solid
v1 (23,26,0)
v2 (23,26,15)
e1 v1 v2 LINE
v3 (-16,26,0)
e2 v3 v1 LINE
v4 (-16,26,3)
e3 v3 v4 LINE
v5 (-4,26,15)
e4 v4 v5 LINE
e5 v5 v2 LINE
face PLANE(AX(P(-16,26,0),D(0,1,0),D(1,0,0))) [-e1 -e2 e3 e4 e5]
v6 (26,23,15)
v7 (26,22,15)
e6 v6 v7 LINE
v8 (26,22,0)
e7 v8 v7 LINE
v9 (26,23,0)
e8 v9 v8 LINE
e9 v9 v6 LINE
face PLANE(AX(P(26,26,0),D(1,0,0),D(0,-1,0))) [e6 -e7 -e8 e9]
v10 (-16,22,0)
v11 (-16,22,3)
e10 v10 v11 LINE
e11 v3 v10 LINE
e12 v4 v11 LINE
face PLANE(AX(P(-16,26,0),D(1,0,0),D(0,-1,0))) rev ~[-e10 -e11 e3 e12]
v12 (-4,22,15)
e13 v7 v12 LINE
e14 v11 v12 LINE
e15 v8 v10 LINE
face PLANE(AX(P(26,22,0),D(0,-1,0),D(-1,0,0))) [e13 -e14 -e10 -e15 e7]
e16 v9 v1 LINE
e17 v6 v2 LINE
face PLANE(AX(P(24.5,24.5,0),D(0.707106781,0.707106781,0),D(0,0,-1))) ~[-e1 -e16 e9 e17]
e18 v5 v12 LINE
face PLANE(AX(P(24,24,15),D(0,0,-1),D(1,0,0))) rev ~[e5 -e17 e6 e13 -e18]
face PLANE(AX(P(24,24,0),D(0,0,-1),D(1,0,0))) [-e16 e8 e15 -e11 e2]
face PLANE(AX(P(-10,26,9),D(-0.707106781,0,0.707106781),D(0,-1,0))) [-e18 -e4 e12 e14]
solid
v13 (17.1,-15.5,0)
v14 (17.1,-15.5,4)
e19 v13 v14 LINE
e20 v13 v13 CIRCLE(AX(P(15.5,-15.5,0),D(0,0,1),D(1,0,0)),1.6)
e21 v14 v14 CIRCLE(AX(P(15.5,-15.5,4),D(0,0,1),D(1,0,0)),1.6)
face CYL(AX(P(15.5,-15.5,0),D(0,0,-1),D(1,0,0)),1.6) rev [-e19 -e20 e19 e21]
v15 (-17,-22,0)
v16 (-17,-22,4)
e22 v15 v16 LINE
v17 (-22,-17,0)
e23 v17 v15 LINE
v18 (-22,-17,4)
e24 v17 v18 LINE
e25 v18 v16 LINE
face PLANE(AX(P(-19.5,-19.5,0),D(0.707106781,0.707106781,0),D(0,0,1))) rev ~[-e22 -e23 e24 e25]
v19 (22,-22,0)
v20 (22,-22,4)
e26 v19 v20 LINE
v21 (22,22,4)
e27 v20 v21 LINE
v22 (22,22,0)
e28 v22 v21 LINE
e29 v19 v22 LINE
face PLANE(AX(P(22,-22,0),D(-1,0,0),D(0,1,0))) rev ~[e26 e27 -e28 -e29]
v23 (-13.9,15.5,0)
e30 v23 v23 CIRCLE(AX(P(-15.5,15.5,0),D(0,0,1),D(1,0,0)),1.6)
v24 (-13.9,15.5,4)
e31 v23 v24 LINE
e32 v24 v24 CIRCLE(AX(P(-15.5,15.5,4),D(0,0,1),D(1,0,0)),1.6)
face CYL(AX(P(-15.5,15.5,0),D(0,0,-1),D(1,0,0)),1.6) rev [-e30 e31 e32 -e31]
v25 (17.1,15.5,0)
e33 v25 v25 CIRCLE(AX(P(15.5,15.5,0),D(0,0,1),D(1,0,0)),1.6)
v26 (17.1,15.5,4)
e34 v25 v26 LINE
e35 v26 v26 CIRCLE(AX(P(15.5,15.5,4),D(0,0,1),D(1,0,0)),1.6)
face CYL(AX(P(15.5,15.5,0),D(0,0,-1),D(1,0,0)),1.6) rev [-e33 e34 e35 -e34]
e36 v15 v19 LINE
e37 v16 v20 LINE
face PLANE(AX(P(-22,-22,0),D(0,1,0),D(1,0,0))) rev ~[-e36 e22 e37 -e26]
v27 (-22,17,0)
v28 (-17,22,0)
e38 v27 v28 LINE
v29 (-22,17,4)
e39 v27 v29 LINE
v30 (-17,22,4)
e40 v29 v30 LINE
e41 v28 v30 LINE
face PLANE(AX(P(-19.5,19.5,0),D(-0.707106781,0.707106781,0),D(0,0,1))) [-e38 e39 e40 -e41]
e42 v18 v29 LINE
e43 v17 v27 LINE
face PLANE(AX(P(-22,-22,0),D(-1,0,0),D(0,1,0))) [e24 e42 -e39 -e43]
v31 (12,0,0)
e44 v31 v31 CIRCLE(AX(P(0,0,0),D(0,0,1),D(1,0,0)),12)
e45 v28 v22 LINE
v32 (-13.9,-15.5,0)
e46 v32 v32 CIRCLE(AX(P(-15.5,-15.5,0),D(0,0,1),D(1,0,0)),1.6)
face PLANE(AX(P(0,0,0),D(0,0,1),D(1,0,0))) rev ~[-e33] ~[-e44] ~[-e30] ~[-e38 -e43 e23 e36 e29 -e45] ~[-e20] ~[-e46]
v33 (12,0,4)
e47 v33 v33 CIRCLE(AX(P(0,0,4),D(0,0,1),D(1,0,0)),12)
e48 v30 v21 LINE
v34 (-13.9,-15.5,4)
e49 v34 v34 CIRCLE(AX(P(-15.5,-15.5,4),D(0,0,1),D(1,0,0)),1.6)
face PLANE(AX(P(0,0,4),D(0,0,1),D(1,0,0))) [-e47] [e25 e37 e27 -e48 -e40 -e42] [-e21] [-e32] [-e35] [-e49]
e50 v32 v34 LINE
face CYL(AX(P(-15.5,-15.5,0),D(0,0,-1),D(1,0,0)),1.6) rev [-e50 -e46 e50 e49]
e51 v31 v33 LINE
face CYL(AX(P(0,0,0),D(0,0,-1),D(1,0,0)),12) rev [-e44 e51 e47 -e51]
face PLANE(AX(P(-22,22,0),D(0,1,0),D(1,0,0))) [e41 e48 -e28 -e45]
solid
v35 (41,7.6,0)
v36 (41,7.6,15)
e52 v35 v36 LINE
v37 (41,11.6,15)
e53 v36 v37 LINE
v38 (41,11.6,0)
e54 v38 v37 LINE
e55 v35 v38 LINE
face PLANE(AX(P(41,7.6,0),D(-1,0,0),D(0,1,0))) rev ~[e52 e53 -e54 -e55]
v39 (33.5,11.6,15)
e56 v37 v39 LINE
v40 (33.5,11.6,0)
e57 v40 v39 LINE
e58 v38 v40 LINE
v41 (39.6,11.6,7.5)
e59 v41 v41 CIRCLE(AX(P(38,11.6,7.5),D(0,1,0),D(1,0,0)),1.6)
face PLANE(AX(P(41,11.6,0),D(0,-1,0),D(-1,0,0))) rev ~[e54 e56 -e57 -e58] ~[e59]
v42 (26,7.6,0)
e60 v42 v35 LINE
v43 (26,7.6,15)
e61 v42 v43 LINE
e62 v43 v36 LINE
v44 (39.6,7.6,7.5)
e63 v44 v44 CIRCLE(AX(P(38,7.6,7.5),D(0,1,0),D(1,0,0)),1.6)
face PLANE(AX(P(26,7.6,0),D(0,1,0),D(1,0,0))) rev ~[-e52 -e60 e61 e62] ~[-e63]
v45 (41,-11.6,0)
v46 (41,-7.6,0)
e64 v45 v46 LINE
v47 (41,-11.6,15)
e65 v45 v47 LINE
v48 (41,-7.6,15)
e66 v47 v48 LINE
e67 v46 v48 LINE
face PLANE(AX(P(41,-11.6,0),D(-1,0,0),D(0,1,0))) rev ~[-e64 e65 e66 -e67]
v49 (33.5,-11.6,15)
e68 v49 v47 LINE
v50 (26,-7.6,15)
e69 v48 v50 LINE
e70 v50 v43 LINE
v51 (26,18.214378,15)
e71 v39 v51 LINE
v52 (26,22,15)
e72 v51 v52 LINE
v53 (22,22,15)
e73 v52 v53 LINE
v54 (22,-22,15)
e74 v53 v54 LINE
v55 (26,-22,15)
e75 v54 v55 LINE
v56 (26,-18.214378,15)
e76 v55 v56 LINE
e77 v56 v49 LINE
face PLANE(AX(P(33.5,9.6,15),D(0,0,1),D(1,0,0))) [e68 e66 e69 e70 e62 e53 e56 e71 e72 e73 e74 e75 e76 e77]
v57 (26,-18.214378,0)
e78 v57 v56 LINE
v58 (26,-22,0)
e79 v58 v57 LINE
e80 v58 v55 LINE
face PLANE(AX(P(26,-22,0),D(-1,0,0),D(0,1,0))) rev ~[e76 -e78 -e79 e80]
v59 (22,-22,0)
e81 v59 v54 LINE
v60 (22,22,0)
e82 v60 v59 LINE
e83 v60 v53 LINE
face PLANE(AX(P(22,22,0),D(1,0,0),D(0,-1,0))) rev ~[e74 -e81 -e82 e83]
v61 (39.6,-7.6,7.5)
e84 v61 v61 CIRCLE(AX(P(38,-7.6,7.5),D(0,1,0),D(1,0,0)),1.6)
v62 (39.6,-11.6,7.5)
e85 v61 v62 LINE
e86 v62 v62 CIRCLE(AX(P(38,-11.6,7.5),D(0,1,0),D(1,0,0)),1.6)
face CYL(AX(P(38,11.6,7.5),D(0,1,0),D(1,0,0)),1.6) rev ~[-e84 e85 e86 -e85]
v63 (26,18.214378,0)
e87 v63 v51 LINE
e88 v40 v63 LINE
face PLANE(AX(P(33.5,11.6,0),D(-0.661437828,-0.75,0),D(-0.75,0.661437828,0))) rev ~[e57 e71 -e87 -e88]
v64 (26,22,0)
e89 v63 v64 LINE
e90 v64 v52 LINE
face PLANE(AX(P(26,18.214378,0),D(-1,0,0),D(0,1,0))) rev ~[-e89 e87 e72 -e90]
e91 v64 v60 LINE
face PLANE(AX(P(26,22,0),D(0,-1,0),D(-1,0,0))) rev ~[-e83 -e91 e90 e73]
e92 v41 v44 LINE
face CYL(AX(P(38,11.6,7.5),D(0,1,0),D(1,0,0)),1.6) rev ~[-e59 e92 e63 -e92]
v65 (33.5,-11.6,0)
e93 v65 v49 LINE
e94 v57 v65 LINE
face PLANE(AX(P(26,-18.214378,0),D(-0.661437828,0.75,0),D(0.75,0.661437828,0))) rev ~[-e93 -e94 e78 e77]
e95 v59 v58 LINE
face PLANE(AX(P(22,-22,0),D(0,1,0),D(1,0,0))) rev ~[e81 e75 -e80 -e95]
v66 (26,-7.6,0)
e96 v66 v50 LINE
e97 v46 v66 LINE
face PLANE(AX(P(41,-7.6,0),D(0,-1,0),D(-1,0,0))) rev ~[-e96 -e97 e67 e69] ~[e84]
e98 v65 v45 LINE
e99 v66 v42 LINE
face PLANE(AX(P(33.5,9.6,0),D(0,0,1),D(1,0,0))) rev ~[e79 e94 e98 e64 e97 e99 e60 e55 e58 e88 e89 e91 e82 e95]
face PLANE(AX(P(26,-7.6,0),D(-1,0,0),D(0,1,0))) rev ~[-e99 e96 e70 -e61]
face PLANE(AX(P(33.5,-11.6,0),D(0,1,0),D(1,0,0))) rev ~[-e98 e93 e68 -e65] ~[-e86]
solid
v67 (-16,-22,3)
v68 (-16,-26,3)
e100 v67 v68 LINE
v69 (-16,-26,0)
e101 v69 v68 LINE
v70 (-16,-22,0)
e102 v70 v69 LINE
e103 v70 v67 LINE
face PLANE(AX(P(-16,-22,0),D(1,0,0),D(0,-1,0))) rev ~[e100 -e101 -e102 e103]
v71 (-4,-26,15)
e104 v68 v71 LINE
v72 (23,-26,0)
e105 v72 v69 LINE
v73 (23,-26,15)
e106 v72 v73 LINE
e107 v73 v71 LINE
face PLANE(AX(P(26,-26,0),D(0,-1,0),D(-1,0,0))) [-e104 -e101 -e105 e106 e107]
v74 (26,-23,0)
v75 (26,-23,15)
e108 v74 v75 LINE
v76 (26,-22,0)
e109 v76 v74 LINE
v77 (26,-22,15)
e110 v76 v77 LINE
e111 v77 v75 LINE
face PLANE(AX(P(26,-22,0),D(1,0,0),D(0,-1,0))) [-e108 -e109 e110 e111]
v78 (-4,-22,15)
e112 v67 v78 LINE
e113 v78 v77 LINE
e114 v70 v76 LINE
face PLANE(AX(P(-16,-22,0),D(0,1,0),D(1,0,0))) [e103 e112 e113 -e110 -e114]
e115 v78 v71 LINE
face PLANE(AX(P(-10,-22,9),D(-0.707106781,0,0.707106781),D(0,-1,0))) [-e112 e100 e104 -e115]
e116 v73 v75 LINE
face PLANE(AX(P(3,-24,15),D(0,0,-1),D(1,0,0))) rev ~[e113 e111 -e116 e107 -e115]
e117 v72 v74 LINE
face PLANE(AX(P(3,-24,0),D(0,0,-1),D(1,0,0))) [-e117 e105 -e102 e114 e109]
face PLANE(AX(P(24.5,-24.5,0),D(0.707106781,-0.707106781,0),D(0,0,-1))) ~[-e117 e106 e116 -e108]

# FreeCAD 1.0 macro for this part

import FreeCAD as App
import Part
import Sketcher
Q = App.Units.Quantity


def edges_at(feature, points):
    """Names of the edges that pass closest to the given points."""
    edges = feature.Shape.Edges
    near = lambda p: min(range(len(edges)), key=lambda i: edges[i].distToShape(Part.Vertex(*p))[0])
    return sorted({f"Edge{near(p) + 1}" for p in points})


def add_polygon(sketch, points):
    """Adds a closed chain of lines whose ends are joined by coincident constraints."""
    first, n = sketch.GeometryCount, len(points)
    for a, b in zip(points, points[1:] + points[:1]):
        sketch.addGeometry(Part.LineSegment(App.Vector(*a, 0), App.Vector(*b, 0)), False)
    for i in range(n):
        sketch.addConstraint(Sketcher.Constraint("Coincident", first + i, 2, first + (i + 1) % n, 1))

doc = App.newDocument("Part")
body = doc.addObject("PartDesign::Body", "Body")

# Sketch on XY plane
sketch1 = body.newObject("Sketcher::SketchObject", "Sketch")
sketch1.AttachmentSupport = (doc.getObject("XY_Plane"), [""])
sketch1.MapMode = "FlatFace"
add_polygon(sketch1, [(-22, 22), (-22, -22), (22, -22), (22, 22)])  # lines 0-3
sketch1.addGeometry(Part.Circle(App.Vector(-15.5, -15.5, 0), App.Vector(0, 0, 1), 1.6), False)  # 4
sketch1.addGeometry(Part.Circle(App.Vector(15.5, -15.5, 0), App.Vector(0, 0, 1), 1.6), False)  # 5
sketch1.addGeometry(Part.Circle(App.Vector(-15.5, 15.5, 0), App.Vector(0, 0, 1), 1.6), False)  # 6
sketch1.addGeometry(Part.Circle(App.Vector(0, 0, 0), App.Vector(0, 0, 1), 12), False)  # 7
sketch1.addGeometry(Part.Circle(App.Vector(15.5, 15.5, 0), App.Vector(0, 0, 1), 1.6), False)  # 8
sketch1.addConstraint([
    Sketcher.Constraint("Vertical", 0),
    Sketcher.Constraint("Horizontal", 1),
    Sketcher.Constraint("Vertical", 2),
    Sketcher.Constraint("Horizontal", 3),
    Sketcher.Constraint("Coincident", 7, 3, -1, 1),
    Sketcher.Constraint("Equal", 4, 5),
    Sketcher.Constraint("Equal", 5, 6),
    Sketcher.Constraint("Equal", 6, 8),
    Sketcher.Constraint("Symmetric", 5, 3, 6, 3, -1, 1),
    Sketcher.Constraint("Symmetric", 4, 3, 8, 3, -1, 1),
    Sketcher.Constraint("Symmetric", 0, 2, 2, 2, -1, 1),
    Sketcher.Constraint("Symmetric", 4, 3, 5, 3, -2),
    Sketcher.Constraint("Equal", 3, 0),
    Sketcher.Constraint("Diameter", 7, Q("24 mm")),
    Sketcher.Constraint("Diameter", 4, Q("3.2 mm")),
    Sketcher.Constraint("DistanceX", 1, 1, 1, 2, Q("44 mm")),
    Sketcher.Constraint("DistanceX", 4, 3, 5, 3, Q("31 mm")),
    Sketcher.Constraint("DistanceY", 4, 3, 6, 3, Q("31 mm")),
])
pad1 = body.newObject("PartDesign::Pad", "Pad")
pad1.Profile = sketch1
pad1.Length = 4
doc.recompute()

chamfer = body.newObject("PartDesign::Chamfer", "Chamfer")
chamfer.Base = (pad1, edges_at(pad1, [(-22, 22, 2), (-22, -22, 2)]))
chamfer.Size = 5
body2 = doc.addObject("PartDesign::Body", "Body001")

# Sketch on XY plane
sketch2 = body2.newObject("Sketcher::SketchObject", "Sketch001")
sketch2.AttachmentSupport = (doc.getObject("XY_Plane001"), [""])
sketch2.MapMode = "FlatFace"
add_polygon(sketch2, [(26, 7.6), (41, 7.6), (41, 11.6), (33.5, 11.6), (26, 18.2), (26, 22), (22, 22), (22, -22), (26, -22), (26, -18.2), (33.5, -11.6), (41, -11.6), (41, -7.6), (26, -7.6)])  # lines 0-13
sketch2.addConstraint([
    Sketcher.Constraint("Horizontal", 0),
    Sketcher.Constraint("Vertical", 1),
    Sketcher.Constraint("Horizontal", 2),
    Sketcher.Constraint("Vertical", 4),
    Sketcher.Constraint("Horizontal", 5),
    Sketcher.Constraint("Vertical", 6),
    Sketcher.Constraint("Horizontal", 7),
    Sketcher.Constraint("Vertical", 8),
    Sketcher.Constraint("Horizontal", 10),
    Sketcher.Constraint("Vertical", 11),
    Sketcher.Constraint("Horizontal", 12),
    Sketcher.Constraint("Vertical", 13),
    Sketcher.Constraint("Symmetric", 4, 2, 7, 2, -1),
    Sketcher.Constraint("Symmetric", 2, 2, 9, 2, -1),
    Sketcher.Constraint("Symmetric", 0, 2, 11, 2, -1),
    Sketcher.Constraint("Vertical", 8, 2, 12, 2),
    Sketcher.Constraint("Equal", 7, 1),
    Sketcher.Constraint("Equal", 4, 8),
    Sketcher.Constraint("DistanceX", 0, 1, 0, 2, Q("15 mm")),
    Sketcher.Constraint("DistanceX", 5, 2, 5, 1, Q("4 mm")),
    Sketcher.Constraint("DistanceY", 6, 2, 6, 1, Q("44 mm")),
    Sketcher.Constraint("Distance", 3, Q("10 mm")),
    Sketcher.Constraint("DistanceX", 2, 2, 2, 1, Q("7.5 mm")),
    Sketcher.Constraint("DistanceY", 13, 1, 13, 2, Q("15.2 mm")),
    Sketcher.Constraint("DistanceX", -1, 1, 0, 2, Q("41 mm")),
])
pad2 = body2.newObject("PartDesign::Pad", "Pad001")
pad2.Profile = sketch2
pad2.Length = 15

# Sketch on XZ plane
sketch3 = body2.newObject("Sketcher::SketchObject", "Sketch002")
sketch3.AttachmentSupport = (doc.getObject("XZ_Plane001"), [""])
sketch3.MapMode = "FlatFace"
sketch3.AttachmentOffset = App.Placement(App.Vector(0, 0, -11.6), App.Rotation())
sketch3.addGeometry(Part.Circle(App.Vector(38, 7.5, 0), App.Vector(0, 0, 1), 1.6), False)
sketch3.addConstraint([
    Sketcher.Constraint("Diameter", 0, Q("3.2 mm")),
    Sketcher.Constraint("DistanceX", -1, 1, 0, 3, Q("38 mm")),
    Sketcher.Constraint("DistanceY", -1, 1, 0, 3, Q("7.5 mm")),
])
pocket1 = body2.newObject("PartDesign::Pocket", "Pocket")
pocket1.Profile = sketch3
pocket1.Length = 25
pocket1.Reversed = True
body3 = doc.addObject("PartDesign::Body", "Body002")

# Sketch on XY plane
sketch4 = body3.newObject("Sketcher::SketchObject", "Sketch003")
sketch4.AttachmentSupport = (doc.getObject("XY_Plane002"), [""])
sketch4.MapMode = "FlatFace"
add_polygon(sketch4, [(26, 26), (26, 22), (-16, 22), (-16, 26)])  # lines 0-3
sketch4.addConstraint([
    Sketcher.Constraint("Vertical", 0),
    Sketcher.Constraint("Horizontal", 1),
    Sketcher.Constraint("Vertical", 2),
    Sketcher.Constraint("Horizontal", 3),
    Sketcher.Constraint("DistanceX", 1, 2, 1, 1, Q("42 mm")),
    Sketcher.Constraint("DistanceY", 0, 2, 0, 1, Q("4 mm")),
    Sketcher.Constraint("DistanceX", -1, 1, 0, 2, Q("26 mm")),
    Sketcher.Constraint("DistanceY", -1, 1, 0, 2, Q("22 mm")),
])
pad3 = body3.newObject("PartDesign::Pad", "Pad002")
pad3.Profile = sketch4
pad3.Length = 15
doc.recompute()

chamfer2 = body3.newObject("PartDesign::Chamfer", "Chamfer001")
chamfer2.Base = (pad3, edges_at(pad3, [(-16, 24, 15)]))
chamfer2.Size = 12
doc.recompute()

chamfer3 = body3.newObject("PartDesign::Chamfer", "Chamfer002")
chamfer3.Base = (chamfer2, edges_at(chamfer2, [(26, 26, 7.5)]))
chamfer3.Size = 3
body4 = doc.addObject("PartDesign::Body", "Body003")

# Sketch on XY plane
sketch5 = body4.newObject("Sketcher::SketchObject", "Sketch004")
sketch5.AttachmentSupport = (doc.getObject("XY_Plane003"), [""])
sketch5.MapMode = "FlatFace"
add_polygon(sketch5, [(-16, -26), (-16, -22), (26, -22), (26, -26)])  # lines 0-3
sketch5.addConstraint([
    Sketcher.Constraint("Vertical", 0),
    Sketcher.Constraint("Horizontal", 1),
    Sketcher.Constraint("Vertical", 2),
    Sketcher.Constraint("Horizontal", 3),
    Sketcher.Constraint("DistanceX", 1, 1, 1, 2, Q("42 mm")),
    Sketcher.Constraint("DistanceY", 0, 1, 0, 2, Q("4 mm")),
    Sketcher.Constraint("DistanceX", 0, 2, -1, 1, Q("16 mm")),
    Sketcher.Constraint("DistanceY", 0, 2, -1, 1, Q("22 mm")),
])
pad4 = body4.newObject("PartDesign::Pad", "Pad003")
pad4.Profile = sketch5
pad4.Length = 15
doc.recompute()

chamfer4 = body4.newObject("PartDesign::Chamfer", "Chamfer003")
chamfer4.Base = (pad4, edges_at(pad4, [(-16, -24, 15)]))
chamfer4.Size = 12
doc.recompute()

chamfer5 = body4.newObject("PartDesign::Chamfer", "Chamfer004")
chamfer5.Base = (chamfer4, edges_at(chamfer4, [(26, -26, 7.5)]))
chamfer5.Size = 3

doc.recompute()
